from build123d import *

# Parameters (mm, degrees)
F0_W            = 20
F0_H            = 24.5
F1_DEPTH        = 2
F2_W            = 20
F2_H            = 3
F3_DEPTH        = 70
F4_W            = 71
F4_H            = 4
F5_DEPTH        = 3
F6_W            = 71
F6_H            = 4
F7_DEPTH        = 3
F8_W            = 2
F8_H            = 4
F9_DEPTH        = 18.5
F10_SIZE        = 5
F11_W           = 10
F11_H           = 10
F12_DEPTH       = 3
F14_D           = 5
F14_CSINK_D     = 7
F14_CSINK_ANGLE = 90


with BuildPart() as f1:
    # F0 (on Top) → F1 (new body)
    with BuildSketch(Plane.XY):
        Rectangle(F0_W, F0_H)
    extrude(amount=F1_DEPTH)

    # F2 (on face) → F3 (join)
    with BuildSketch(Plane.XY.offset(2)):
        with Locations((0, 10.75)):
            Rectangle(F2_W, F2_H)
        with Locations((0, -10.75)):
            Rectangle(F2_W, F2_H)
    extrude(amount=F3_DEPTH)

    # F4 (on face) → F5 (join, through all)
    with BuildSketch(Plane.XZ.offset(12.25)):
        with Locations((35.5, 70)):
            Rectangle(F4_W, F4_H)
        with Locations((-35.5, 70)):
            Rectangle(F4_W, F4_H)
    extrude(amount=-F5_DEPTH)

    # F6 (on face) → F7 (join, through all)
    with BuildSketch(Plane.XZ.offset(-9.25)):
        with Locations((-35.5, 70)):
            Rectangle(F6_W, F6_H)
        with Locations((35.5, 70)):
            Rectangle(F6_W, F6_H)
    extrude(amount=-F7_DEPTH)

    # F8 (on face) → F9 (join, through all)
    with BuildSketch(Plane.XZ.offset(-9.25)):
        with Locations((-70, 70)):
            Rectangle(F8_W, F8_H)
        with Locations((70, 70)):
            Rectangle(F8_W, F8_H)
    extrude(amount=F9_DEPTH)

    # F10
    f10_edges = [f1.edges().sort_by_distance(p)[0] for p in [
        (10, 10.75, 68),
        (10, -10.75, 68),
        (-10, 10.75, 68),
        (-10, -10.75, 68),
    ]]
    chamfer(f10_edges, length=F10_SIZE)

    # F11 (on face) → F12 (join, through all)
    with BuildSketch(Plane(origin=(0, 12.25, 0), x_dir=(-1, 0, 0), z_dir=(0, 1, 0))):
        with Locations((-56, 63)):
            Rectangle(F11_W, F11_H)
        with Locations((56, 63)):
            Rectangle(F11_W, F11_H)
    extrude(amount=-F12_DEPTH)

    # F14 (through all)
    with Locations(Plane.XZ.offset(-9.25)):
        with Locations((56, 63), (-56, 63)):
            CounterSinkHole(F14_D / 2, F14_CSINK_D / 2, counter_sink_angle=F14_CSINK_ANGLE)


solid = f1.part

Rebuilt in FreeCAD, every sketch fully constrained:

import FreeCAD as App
import Part
import Sketcher
from FreeCAD import Vector
Q = App.Units.Quantity


def edges_at(feature, points):
    """Names of the edges that pass closest to the given points."""
    edges = feature.Shape.Edges
    near = lambda p: min(range(len(edges)), key=lambda i: edges[i].distToShape(Part.Vertex(*p))[0])
    return sorted({f"Edge{near(p) + 1}" for p in points})

doc = App.newDocument("Part")
body = doc.addObject("PartDesign::Body", "Body")

sketch1 = body.newObject("Sketcher::SketchObject", "Sketch")
sketch1.AttachmentSupport = (doc.getObject("XY_Plane"), [""])
sketch1.MapMode = "FlatFace"
sketch1.addGeometry([
    Part.LineSegment(Vector(-10, 12, 0), Vector(-10, -12, 0)),
    Part.LineSegment(Vector(-10, -12, 0), Vector(10, -12, 0)),
    Part.LineSegment(Vector(10, -12, 0), Vector(10, 12, 0)),
    Part.LineSegment(Vector(10, 12, 0), Vector(-10, 12, 0)),
], False)
sketch1.addConstraint([
    Sketcher.Constraint("Coincident", 0, 2, 1, 1),
    Sketcher.Constraint("Coincident", 1, 2, 2, 1),
    Sketcher.Constraint("Coincident", 2, 2, 3, 1),
    Sketcher.Constraint("Coincident", 3, 2, 0, 1),
    Sketcher.Constraint("Vertical", 0),
    Sketcher.Constraint("Horizontal", 1),
    Sketcher.Constraint("Vertical", 2),
    Sketcher.Constraint("Horizontal", 3),
    Sketcher.Constraint("Symmetric", 0, 2, 2, 2, -1, 1),
    Sketcher.Constraint("DistanceX", 1, 1, 1, 2, Q("20 mm")),
    Sketcher.Constraint("DistanceY", 0, 2, 0, 1, Q("24.5 mm")),
])
pad1 = body.newObject("PartDesign::Pad", "Pad")
pad1.Profile = sketch1
pad1.Length = 2

sketch2 = body.newObject("Sketcher::SketchObject", "Sketch001")
sketch2.AttachmentSupport = (doc.getObject("XY_Plane"), [""])
sketch2.MapMode = "FlatFace"
sketch2.AttachmentOffset = App.Placement(Vector(0, 0, 2), App.Rotation())
sketch2.addGeometry([
    Part.LineSegment(Vector(-10, 12.2, 0), Vector(-10, 9.2, 0)),
    Part.LineSegment(Vector(-10, 9.2, 0), Vector(10, 9.2, 0)),
    Part.LineSegment(Vector(10, 9.2, 0), Vector(10, 12.2, 0)),
    Part.LineSegment(Vector(10, 12.2, 0), Vector(-10, 12.2, 0)),
    Part.LineSegment(Vector(-10, -9.2, 0), Vector(-10, -12.2, 0)),
    Part.LineSegment(Vector(-10, -12.2, 0), Vector(10, -12.2, 0)),
    Part.LineSegment(Vector(10, -12.2, 0), Vector(10, -9.2, 0)),
    Part.LineSegment(Vector(10, -9.2, 0), Vector(-10, -9.2, 0)),
], False)
sketch2.addConstraint([
    Sketcher.Constraint("Coincident", 0, 2, 1, 1),
    Sketcher.Constraint("Coincident", 1, 2, 2, 1),
    Sketcher.Constraint("Coincident", 2, 2, 3, 1),
    Sketcher.Constraint("Coincident", 3, 2, 0, 1),
    Sketcher.Constraint("Coincident", 4, 2, 5, 1),
    Sketcher.Constraint("Coincident", 5, 2, 6, 1),
    Sketcher.Constraint("Coincident", 6, 2, 7, 1),
    Sketcher.Constraint("Coincident", 7, 2, 4, 1),
    Sketcher.Constraint("Vertical", 0),
    Sketcher.Constraint("Horizontal", 1),
    Sketcher.Constraint("Vertical", 2),
    Sketcher.Constraint("Horizontal", 3),
    Sketcher.Constraint("Vertical", 4),
    Sketcher.Constraint("Horizontal", 5),
    Sketcher.Constraint("Vertical", 6),
    Sketcher.Constraint("Horizontal", 7),
    Sketcher.Constraint("Symmetric", 2, 2, 4, 2, -1, 1),
    Sketcher.Constraint("Symmetric", 0, 2, 6, 2, -1, 1),
    Sketcher.Constraint("Vertical", 3, 2, 4, 2),
    Sketcher.Constraint("DistanceX", 1, 1, 1, 2, Q("20 mm")),
    Sketcher.Constraint("DistanceY", 0, 2, 0, 1, Q("3 mm")),
    Sketcher.Constraint("DistanceY", 4, 2, 0, 2, Q("21.5 mm")),
])
pad2 = body.newObject("PartDesign::Pad", "Pad001")
pad2.Profile = sketch2
pad2.Length = 70

sketch3 = body.newObject("Sketcher::SketchObject", "Sketch002")
sketch3.AttachmentSupport = (doc.getObject("XZ_Plane"), [""])
sketch3.MapMode = "FlatFace"
sketch3.AttachmentOffset = App.Placement(Vector(0, 0, 12.25), App.Rotation())
sketch3.addGeometry([
    Part.LineSegment(Vector(71, 68, 0), Vector(71, 72, 0)),
    Part.LineSegment(Vector(71, 72, 0), Vector(-71, 72, 0)),
    Part.LineSegment(Vector(-71, 72, 0), Vector(-71, 68, 0)),
    Part.LineSegment(Vector(-71, 68, 0), Vector(71, 68, 0)),
], False)
sketch3.addConstraint([
    Sketcher.Constraint("Coincident", 0, 2, 1, 1),
    Sketcher.Constraint("Coincident", 1, 2, 2, 1),
    Sketcher.Constraint("Coincident", 2, 2, 3, 1),
    Sketcher.Constraint("Coincident", 3, 2, 0, 1),
    Sketcher.Constraint("Vertical", 0),
    Sketcher.Constraint("Horizontal", 1),
    Sketcher.Constraint("Vertical", 2),
    Sketcher.Constraint("Horizontal", 3),
    Sketcher.Constraint("DistanceX", 1, 2, 1, 1, Q("142 mm")),
    Sketcher.Constraint("DistanceY", 0, 1, 0, 2, Q("4 mm")),
    Sketcher.Constraint("DistanceX", -1, 1, 0, 2, Q("71 mm")),
    Sketcher.Constraint("DistanceY", -1, 1, 0, 2, Q("72 mm")),
])
pad3 = body.newObject("PartDesign::Pad", "Pad002")
pad3.Profile = sketch3
pad3.Length = 3
pad3.Reversed = True

sketch4 = body.newObject("Sketcher::SketchObject", "Sketch003")
sketch4.AttachmentSupport = (doc.getObject("XZ_Plane"), [""])
sketch4.MapMode = "FlatFace"
sketch4.AttachmentOffset = App.Placement(Vector(0, 0, -9.25), App.Rotation())
sketch4.addGeometry([
    Part.LineSegment(Vector(-71, 72, 0), Vector(-71, 68, 0)),
    Part.LineSegment(Vector(-71, 68, 0), Vector(71, 68, 0)),
    Part.LineSegment(Vector(71, 68, 0), Vector(71, 72, 0)),
    Part.LineSegment(Vector(71, 72, 0), Vector(-71, 72, 0)),
], False)
sketch4.addConstraint([
    Sketcher.Constraint("Coincident", 0, 2, 1, 1),
    Sketcher.Constraint("Coincident", 1, 2, 2, 1),
    Sketcher.Constraint("Coincident", 2, 2, 3, 1),
    Sketcher.Constraint("Coincident", 3, 2, 0, 1),
    Sketcher.Constraint("Vertical", 0),
    Sketcher.Constraint("Horizontal", 1),
    Sketcher.Constraint("Vertical", 2),
    Sketcher.Constraint("Horizontal", 3),
    Sketcher.Constraint("DistanceX", 1, 1, 1, 2, Q("142 mm")),
    Sketcher.Constraint("DistanceY", 0, 2, 0, 1, Q("4 mm")),
    Sketcher.Constraint("DistanceX", 0, 2, -1, 1, Q("71 mm")),
    Sketcher.Constraint("DistanceY", -1, 1, 0, 2, Q("68 mm")),
])
pad4 = body.newObject("PartDesign::Pad", "Pad003")
pad4.Profile = sketch4
pad4.Type = "UpToLast"
pad4.Reversed = True

sketch5 = body.newObject("Sketcher::SketchObject", "Sketch004")
sketch5.AttachmentSupport = (doc.getObject("XZ_Plane"), [""])
sketch5.MapMode = "FlatFace"
sketch5.AttachmentOffset = App.Placement(Vector(0, 0, -9.25), App.Rotation())
sketch5.addGeometry([
    Part.LineSegment(Vector(-71, 72, 0), Vector(-71, 68, 0)),
    Part.LineSegment(Vector(-71, 68, 0), Vector(-69, 68, 0)),
    Part.LineSegment(Vector(-69, 68, 0), Vector(-69, 72, 0)),
    Part.LineSegment(Vector(-69, 72, 0), Vector(-71, 72, 0)),
    Part.LineSegment(Vector(69, 72, 0), Vector(69, 68, 0)),
    Part.LineSegment(Vector(69, 68, 0), Vector(71, 68, 0)),
    Part.LineSegment(Vector(71, 68, 0), Vector(71, 72, 0)),
    Part.LineSegment(Vector(71, 72, 0), Vector(69, 72, 0)),
], False)
sketch5.addConstraint([
    Sketcher.Constraint("Coincident", 0, 2, 1, 1),
    Sketcher.Constraint("Coincident", 1, 2, 2, 1),
    Sketcher.Constraint("Coincident", 2, 2, 3, 1),
    Sketcher.Constraint("Coincident", 3, 2, 0, 1),
    Sketcher.Constraint("Coincident", 4, 2, 5, 1),
    Sketcher.Constraint("Coincident", 5, 2, 6, 1),
    Sketcher.Constraint("Coincident", 6, 2, 7, 1),
    Sketcher.Constraint("Coincident", 7, 2, 4, 1),
    Sketcher.Constraint("Vertical", 0),
    Sketcher.Constraint("Horizontal", 1),
    Sketcher.Constraint("Vertical", 2),
    Sketcher.Constraint("Horizontal", 3),
    Sketcher.Constraint("Vertical", 4),
    Sketcher.Constraint("Horizontal", 5),
    Sketcher.Constraint("Vertical", 6),
    Sketcher.Constraint("Horizontal", 7),
    Sketcher.Constraint("Symmetric", 1, 2, 4, 2, -2),
    Sketcher.Constraint("Symmetric", 3, 2, 6, 2, -2),
    Sketcher.Constraint("DistanceX", 1, 1, 1, 2, Q("2 mm")),
    Sketcher.Constraint("DistanceY", 0, 2, 0, 1, Q("4 mm")),
    Sketcher.Constraint("DistanceX", 0, 2, -1, 1, Q("71 mm")),
    Sketcher.Constraint("DistanceY", -1, 1, 0, 2, Q("68 mm")),
])
pad5 = body.newObject("PartDesign::Pad", "Pad004")
pad5.Profile = sketch5
pad5.Type = "UpToLast"
doc.recompute()

chamfer = body.newObject("PartDesign::Chamfer", "Chamfer")
chamfer.Base = (pad5, edges_at(pad5, [
    (10, 10.75, 68),
    (10, -10.75, 68),
    (-10, 10.75, 68),
    (-10, -10.75, 68),
]))
chamfer.Size = 5

sketch6 = body.newObject("Sketcher::SketchObject", "Sketch005")
sketch6.AttachmentSupport = (doc.getObject("XZ_Plane"), [""])
sketch6.MapMode = "FlatFace"
sketch6.AttachmentOffset = App.Placement(Vector(0, 0, -12.25), App.Rotation())
sketch6.addGeometry([
    Part.LineSegment(Vector(61, 68, 0), Vector(61, 58, 0)),
    Part.LineSegment(Vector(61, 58, 0), Vector(51, 58, 0)),
    Part.LineSegment(Vector(51, 58, 0), Vector(51, 68, 0)),
    Part.LineSegment(Vector(51, 68, 0), Vector(61, 68, 0)),
    Part.LineSegment(Vector(-51, 68, 0), Vector(-51, 58, 0)),
    Part.LineSegment(Vector(-51, 58, 0), Vector(-61, 58, 0)),
    Part.LineSegment(Vector(-61, 58, 0), Vector(-61, 68, 0)),
    Part.LineSegment(Vector(-61, 68, 0), Vector(-51, 68, 0)),
], False)
sketch6.addConstraint([
    Sketcher.Constraint("Coincident", 0, 2, 1, 1),
    Sketcher.Constraint("Coincident", 1, 2, 2, 1),
    Sketcher.Constraint("Coincident", 2, 2, 3, 1),
    Sketcher.Constraint("Coincident", 3, 2, 0, 1),
    Sketcher.Constraint("Coincident", 4, 2, 5, 1),
    Sketcher.Constraint("Coincident", 5, 2, 6, 1),
    Sketcher.Constraint("Coincident", 6, 2, 7, 1),
    Sketcher.Constraint("Coincident", 7, 2, 4, 1),
    Sketcher.Constraint("Vertical", 0),
    Sketcher.Constraint("Horizontal", 1),
    Sketcher.Constraint("Vertical", 2),
    Sketcher.Constraint("Horizontal", 3),
    Sketcher.Constraint("Vertical", 4),
    Sketcher.Constraint("Horizontal", 5),
    Sketcher.Constraint("Vertical", 6),
    Sketcher.Constraint("Horizontal", 7),
    Sketcher.Constraint("Symmetric", 1, 2, 4, 2, -2),
    Sketcher.Constraint("Symmetric", 3, 2, 6, 2, -2),
    Sketcher.Constraint("Equal", 7, 0),
    Sketcher.Constraint("DistanceX", 1, 2, 1, 1, Q("10 mm")),
    Sketcher.Constraint("DistanceX", -1, 1, 0, 2, Q("61 mm")),
    Sketcher.Constraint("DistanceY", -1, 1, 0, 2, Q("58 mm")),
])
pad6 = body.newObject("PartDesign::Pad", "Pad005")
pad6.Profile = sketch6
pad6.Length = 3

sketch7 = body.newObject("Sketcher::SketchObject", "Sketch006")
sketch7.AttachmentSupport = (doc.getObject("XZ_Plane"), [""])
sketch7.MapMode = "FlatFace"
sketch7.AttachmentOffset = App.Placement(Vector(0, 0, -9.25), App.Rotation())
sketch7.addGeometry([
    Part.Circle(Vector(56, 63, 0), Vector(0, 0, 1), 2.5),
    Part.Circle(Vector(-56, 63, 0), Vector(0, 0, 1), 2.5),
], False)
sketch7.addConstraint([
    Sketcher.Constraint("Equal", 0, 1),
    Sketcher.Constraint("Symmetric", 0, 3, 1, 3, -2),
    Sketcher.Constraint("Diameter", 0, Q("5 mm")),
    Sketcher.Constraint("DistanceX", -1, 1, 0, 3, Q("56 mm")),
    Sketcher.Constraint("DistanceY", -1, 1, 0, 3, Q("63 mm")),
])
doc.recompute()
hole = body.newObject("PartDesign::Hole", "Hole")
hole.Profile = sketch7
hole.ThreadType = "None"
hole.Diameter = 5
hole.DepthType = "ThroughAll"
hole.HoleCutType = "Countersink"
hole.HoleCutDiameter = 7
hole.HoleCutCountersinkAngle = 90

doc.recompute()
